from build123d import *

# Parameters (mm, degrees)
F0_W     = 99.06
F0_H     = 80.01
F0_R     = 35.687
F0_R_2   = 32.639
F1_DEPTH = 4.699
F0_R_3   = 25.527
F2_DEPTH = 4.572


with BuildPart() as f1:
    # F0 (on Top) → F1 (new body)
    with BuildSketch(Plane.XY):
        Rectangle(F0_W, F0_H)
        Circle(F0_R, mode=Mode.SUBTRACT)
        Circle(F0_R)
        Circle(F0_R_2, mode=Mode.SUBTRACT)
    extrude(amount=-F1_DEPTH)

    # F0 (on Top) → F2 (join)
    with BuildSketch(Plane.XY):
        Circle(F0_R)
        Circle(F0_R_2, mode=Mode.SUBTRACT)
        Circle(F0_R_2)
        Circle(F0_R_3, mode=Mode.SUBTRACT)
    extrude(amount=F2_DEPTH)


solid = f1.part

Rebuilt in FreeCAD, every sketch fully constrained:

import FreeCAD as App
import Part
import Sketcher
from FreeCAD import Vector
Q = App.Units.Quantity


def add_polygon(sketch, points):
    """Adds a closed chain of lines whose ends are joined by coincident constraints."""
    first, n = sketch.GeometryCount, len(points)
    for a, b in zip(points, points[1:] + points[:1]):
        sketch.addGeometry(Part.LineSegment(App.Vector(*a, 0), App.Vector(*b, 0)), False)
    for i in range(n):
        sketch.addConstraint(Sketcher.Constraint("Coincident", first + i, 2, first + (i + 1) % n, 1))

doc = App.newDocument("Part")
params = doc.addObject("Spreadsheet::Sheet", "Params")
for row, (alias, value) in enumerate([
    ("sketch1_diameter", "2.57 in"),
    ("sketch1_width", "3.9 in"),
    ("sketch1_height", "3.15 in"),
    ("pad1_length", "0.185 in"),
    ("sketch2_diameter", "2.81 in"),
    ("sketch2_diameter2", "2.01 in"),
    ("pad2_length", "0.18 in"),
], start=1):
    params.set(f"A{row}", alias)
    params.set(f"B{row}", "=" + value)
    params.setAlias(f"B{row}", alias)

body = doc.addObject("PartDesign::Body", "Body")

# Sketch on XY plane
sketch1 = doc.addObject("Sketcher::SketchObject", "Sketch")
body.addObject(sketch1)
sketch1.AttachmentSupport = (doc.XY_Plane, [""])
sketch1.MapMode = "FlatFace"
add_polygon(sketch1, [(-50, 40), (-50, -40), (50, -40), (50, 40)])  # lines 0-3
sketch1.addGeometry(Part.Circle(Vector(0, 0, 0), Vector(0, 0, 1), 33), False)  # 4
sketch1.addConstraint(Sketcher.Constraint("Vertical", 0))
sketch1.addConstraint(Sketcher.Constraint("Horizontal", 1))
sketch1.addConstraint(Sketcher.Constraint("Vertical", 2))
sketch1.addConstraint(Sketcher.Constraint("Horizontal", 3))
sketch1.addConstraint(Sketcher.Constraint("Coincident", 4, 3, -1, 1))
sketch1.addConstraint(Sketcher.Constraint("Symmetric", 0, 2, 2, 2, -1, 1))
sketch1.addConstraint(Sketcher.Constraint("Diameter", 4, Q("2.57 in")))
sketch1.addConstraint(Sketcher.Constraint("DistanceX", 1, 1, 1, 2, Q("3.9 in")))
sketch1.addConstraint(Sketcher.Constraint("DistanceY", 0, 2, 0, 1, Q("3.15 in")))
sketch1.setExpression("Constraints[10]", "Params.sketch1_diameter")
sketch1.setExpression("Constraints[11]", "Params.sketch1_width")
sketch1.setExpression("Constraints[12]", "Params.sketch1_height")
pad1 = doc.addObject("PartDesign::Pad", "Pad")
body.addObject(pad1)
pad1.Profile = sketch1
pad1.setExpression("Length", "Params.pad1_length")
pad1.Reversed = True

# Sketch on XY plane
sketch2 = doc.addObject("Sketcher::SketchObject", "Sketch001")
body.addObject(sketch2)
sketch2.AttachmentSupport = (doc.XY_Plane, [""])
sketch2.MapMode = "FlatFace"
sketch2.addGeometry(Part.Circle(Vector(0, 0, 0), Vector(0, 0, 1), 36), False)
sketch2.addGeometry(Part.Circle(Vector(0, 0, 0), Vector(0, 0, 1), 26), False)
sketch2.addConstraint(Sketcher.Constraint("Coincident", 0, 3, -1, 1))
sketch2.addConstraint(Sketcher.Constraint("Coincident", 1, 3, -1, 1))
sketch2.addConstraint(Sketcher.Constraint("Diameter", 0, Q("2.81 in")))
sketch2.addConstraint(Sketcher.Constraint("Diameter", 1, Q("2.01 in")))
sketch2.setExpression("Constraints[2]", "Params.sketch2_diameter")
sketch2.setExpression("Constraints[3]", "Params.sketch2_diameter2")
pad2 = doc.addObject("PartDesign::Pad", "Pad001")
body.addObject(pad2)
pad2.Profile = sketch2
pad2.setExpression("Length", "Params.pad2_length")

doc.recompute()
